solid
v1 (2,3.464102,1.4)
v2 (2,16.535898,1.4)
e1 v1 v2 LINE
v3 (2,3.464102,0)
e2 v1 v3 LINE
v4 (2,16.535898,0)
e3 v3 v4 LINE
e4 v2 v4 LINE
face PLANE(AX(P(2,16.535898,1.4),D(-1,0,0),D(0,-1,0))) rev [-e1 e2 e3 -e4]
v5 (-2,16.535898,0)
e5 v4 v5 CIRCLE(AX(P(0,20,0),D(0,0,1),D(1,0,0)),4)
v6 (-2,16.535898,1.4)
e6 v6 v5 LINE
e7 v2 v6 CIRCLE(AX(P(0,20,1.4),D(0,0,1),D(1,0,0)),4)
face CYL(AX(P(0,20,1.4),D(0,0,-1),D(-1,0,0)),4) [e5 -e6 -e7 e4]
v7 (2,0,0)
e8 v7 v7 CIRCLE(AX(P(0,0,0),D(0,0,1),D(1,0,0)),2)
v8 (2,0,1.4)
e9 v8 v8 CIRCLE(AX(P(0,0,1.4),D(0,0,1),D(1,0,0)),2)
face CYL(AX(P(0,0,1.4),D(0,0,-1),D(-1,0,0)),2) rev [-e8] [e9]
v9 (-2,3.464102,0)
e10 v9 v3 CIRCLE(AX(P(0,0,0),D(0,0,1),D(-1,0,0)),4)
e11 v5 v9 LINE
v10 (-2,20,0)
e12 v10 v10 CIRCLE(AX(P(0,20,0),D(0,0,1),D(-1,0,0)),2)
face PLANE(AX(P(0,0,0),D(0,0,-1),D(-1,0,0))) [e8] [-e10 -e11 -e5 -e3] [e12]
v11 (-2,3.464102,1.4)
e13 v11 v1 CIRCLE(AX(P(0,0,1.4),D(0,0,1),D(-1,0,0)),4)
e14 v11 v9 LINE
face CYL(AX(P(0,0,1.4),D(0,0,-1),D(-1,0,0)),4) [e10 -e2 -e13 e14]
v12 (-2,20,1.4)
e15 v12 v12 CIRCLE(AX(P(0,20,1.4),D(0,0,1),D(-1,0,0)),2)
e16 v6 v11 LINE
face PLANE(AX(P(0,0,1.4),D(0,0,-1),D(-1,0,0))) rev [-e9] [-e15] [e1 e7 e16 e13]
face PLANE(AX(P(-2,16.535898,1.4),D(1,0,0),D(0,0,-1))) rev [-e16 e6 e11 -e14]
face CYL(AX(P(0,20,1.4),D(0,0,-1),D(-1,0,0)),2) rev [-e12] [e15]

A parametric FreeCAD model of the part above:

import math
import FreeCAD as App
import Part
import Sketcher
Q = App.Units.Quantity

doc = App.newDocument("Part")
body = doc.addObject("PartDesign::Body", "Body")

sketch1 = body.newObject("Sketcher::SketchObject", "Sketch")
sketch1.AttachmentSupport = (doc.getObject("XY_Plane"), [""])
sketch1.MapMode = "FlatFace"
sketch1.addGeometry(Part.LineSegment(App.Vector(-2, 16.5, 0), App.Vector(-2, 3.5, 0)), False)
sketch1.addGeometry(Part.ArcOfCircle(Part.Circle(App.Vector(0, 0, 0), App.Vector(0, 0, 1), 4), math.radians(120), math.radians(420)), False)
sketch1.addGeometry(Part.LineSegment(App.Vector(2, 3.5, 0), App.Vector(2, 16.5, 0)), False)
sketch1.addGeometry(Part.ArcOfCircle(Part.Circle(App.Vector(0, 20, 0), App.Vector(0, 0, 1), 4), math.radians(-60), math.radians(240)), False)
sketch1.addGeometry(Part.Circle(App.Vector(0, 0, 0), App.Vector(0, 0, 1), 2), False)
sketch1.addGeometry(Part.Circle(App.Vector(0, 20, 0), App.Vector(0, 0, 1), 2), False)
sketch1.addConstraint(Sketcher.Constraint("Coincident", 0, 2, 1, 1))
sketch1.addConstraint(Sketcher.Constraint("Coincident", 1, 2, 2, 1))
sketch1.addConstraint(Sketcher.Constraint("Coincident", 2, 2, 3, 1))
sketch1.addConstraint(Sketcher.Constraint("Coincident", 3, 2, 0, 1))
sketch1.addConstraint(Sketcher.Constraint("Vertical", 0))
sketch1.addConstraint(Sketcher.Constraint("Vertical", 2))
sketch1.addConstraint(Sketcher.Constraint("Coincident", 1, 3, -1, 1))
sketch1.addConstraint(Sketcher.Constraint("Coincident", 4, 3, -1, 1))
sketch1.addConstraint(Sketcher.Constraint("Coincident", 5, 3, 3, 3))
sketch1.addConstraint(Sketcher.Constraint("Equal", 1, 3))
sketch1.addConstraint(Sketcher.Constraint("Equal", 4, 5))
sketch1.addConstraint(Sketcher.Constraint("Symmetric", 2, 2, 3, 2, -2))
sketch1.addConstraint(Sketcher.Constraint("Diameter", 4, Q("4 mm")))
sketch1.addConstraint(Sketcher.Constraint("Radius", 1, Q("4 mm")))
sketch1.addConstraint(Sketcher.Constraint("DistanceY", -1, 1, 3, 3, Q("20 mm")))
sketch1.addConstraint(Sketcher.Constraint("DistanceX", 0, 2, -1, 1, Q("2 mm")))
pad1 = body.newObject("PartDesign::Pad", "Pad")
pad1.Profile = sketch1
pad1.Length = 1.4

doc.recompute()
